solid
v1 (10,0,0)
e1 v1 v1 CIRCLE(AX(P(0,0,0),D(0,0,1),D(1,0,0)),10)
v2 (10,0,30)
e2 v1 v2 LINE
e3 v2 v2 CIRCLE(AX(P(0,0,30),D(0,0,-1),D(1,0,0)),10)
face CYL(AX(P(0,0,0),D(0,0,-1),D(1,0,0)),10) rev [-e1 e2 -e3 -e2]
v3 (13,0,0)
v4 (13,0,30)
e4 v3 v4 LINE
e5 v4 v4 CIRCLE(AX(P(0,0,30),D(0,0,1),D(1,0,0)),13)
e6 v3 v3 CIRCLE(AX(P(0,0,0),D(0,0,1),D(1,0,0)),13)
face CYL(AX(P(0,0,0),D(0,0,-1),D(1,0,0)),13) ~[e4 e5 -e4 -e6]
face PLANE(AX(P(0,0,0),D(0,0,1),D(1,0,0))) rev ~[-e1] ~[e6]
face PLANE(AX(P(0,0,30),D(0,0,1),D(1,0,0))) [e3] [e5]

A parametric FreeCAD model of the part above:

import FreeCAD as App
import Part
import Sketcher
from FreeCAD import Vector

doc = App.newDocument("Part")
params = doc.addObject("Spreadsheet::Sheet", "Params")
for row, (alias, value) in enumerate([
    ("sketch1_diameter", "26 mm"),
    ("pad1_length", "30 mm"),
    ("sketch2_diameter", "20 mm"),
], start=1):
    params.set(f"A{row}", alias)
    params.set(f"B{row}", "=" + value)
    params.setAlias(f"B{row}", alias)

body = doc.addObject("PartDesign::Body", "Body")

# Sketch on XY plane
sketch1 = body.newObject("Sketcher::SketchObject", "Sketch")
sketch1.AttachmentSupport = (doc.getObject("XY_Plane"), [""])
sketch1.MapMode = "FlatFace"
sketch1.addGeometry(Part.Circle(Vector(0, 0, 0), Vector(0, 0, 1), 13), False)
sketch1.addConstraint([
    Sketcher.Constraint("Coincident", 0, 3, -1, 1),
    Sketcher.Constraint("Diameter", 0, 26.0),
])
sketch1.setExpression("Constraints[1]", "Params.sketch1_diameter")
pad1 = body.newObject("PartDesign::Pad", "Pad")
pad1.Profile = sketch1
pad1.setExpression("Length", "Params.pad1_length")

# Sketch on XY plane
sketch2 = body.newObject("Sketcher::SketchObject", "Sketch001")
sketch2.AttachmentSupport = (doc.getObject("XY_Plane"), [""])
sketch2.MapMode = "FlatFace"
sketch2.addGeometry(Part.Circle(Vector(0, 0, 0), Vector(0, 0, 1), 10), False)
sketch2.addConstraint([
    Sketcher.Constraint("Coincident", 0, 3, -1, 1),
    Sketcher.Constraint("Diameter", 0, 20.0),
])
sketch2.setExpression("Constraints[1]", "Params.sketch2_diameter")
pocket1 = body.newObject("PartDesign::Pocket", "Pocket")
pocket1.Profile = sketch2
pocket1.Type = "ThroughAll"
pocket1.Reversed = True

doc.recompute()
